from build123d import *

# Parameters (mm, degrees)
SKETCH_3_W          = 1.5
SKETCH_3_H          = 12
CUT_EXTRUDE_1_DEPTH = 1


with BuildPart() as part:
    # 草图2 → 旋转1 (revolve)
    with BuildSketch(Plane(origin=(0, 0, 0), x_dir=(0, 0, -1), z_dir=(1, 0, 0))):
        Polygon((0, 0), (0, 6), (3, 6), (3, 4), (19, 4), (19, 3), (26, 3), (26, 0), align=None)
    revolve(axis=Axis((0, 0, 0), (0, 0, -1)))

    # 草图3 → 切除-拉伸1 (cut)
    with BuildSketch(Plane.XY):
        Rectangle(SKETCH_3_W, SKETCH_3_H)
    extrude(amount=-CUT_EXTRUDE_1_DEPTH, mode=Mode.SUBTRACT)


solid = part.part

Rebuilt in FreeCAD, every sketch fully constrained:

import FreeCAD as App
import Part
import Sketcher
from FreeCAD import Vector


def add_polygon(sketch, points):
    """Adds a closed chain of lines whose ends are joined by coincident constraints."""
    first, n = sketch.GeometryCount, len(points)
    for a, b in zip(points, points[1:] + points[:1]):
        sketch.addGeometry(Part.LineSegment(App.Vector(*a, 0), App.Vector(*b, 0)), False)
    for i in range(n):
        sketch.addConstraint(Sketcher.Constraint("Coincident", first + i, 2, first + (i + 1) % n, 1))

doc = App.newDocument("Part")
body = doc.addObject("PartDesign::Body", "Body")

# Sketch on YZ plane
sketch1 = body.newObject("Sketcher::SketchObject", "Sketch")
sketch1.AttachmentSupport = (doc.getObject("YZ_Plane"), [""])
sketch1.MapMode = "FlatFace"
add_polygon(sketch1, [(6, 0), (0, 0), (0, -26), (3, -26), (3, -19), (4, -19), (4, -3), (6, -3)])  # lines 0-7
sketch1.addConstraint([
    Sketcher.Constraint("Horizontal", 0),
    Sketcher.Constraint("Vertical", 1),
    Sketcher.Constraint("Horizontal", 2),
    Sketcher.Constraint("Vertical", 3),
    Sketcher.Constraint("Horizontal", 4),
    Sketcher.Constraint("Vertical", 5),
    Sketcher.Constraint("Horizontal", 6),
    Sketcher.Constraint("Vertical", 7),
    Sketcher.Constraint("Coincident", 0, 2, -1, 1),
    Sketcher.Constraint("Equal", 2, 7),
    Sketcher.Constraint("DistanceX", 0, 2, 0, 1, 6.0),
    Sketcher.Constraint("DistanceX", 2, 1, 2, 2, 3.0),
    Sketcher.Constraint("DistanceX", 4, 1, 4, 2, 1.0),
    Sketcher.Constraint("DistanceY", 1, 2, 1, 1, 26.0),
    Sketcher.Constraint("DistanceY", 3, 1, 3, 2, 7.0),
])
revolution = body.newObject("PartDesign::Revolution", "Revolution")
revolution.Profile = sketch1
revolution.ReferenceAxis = (sketch1, ["V_Axis"])
revolution.Angle = 360

# Sketch on XY plane
sketch2 = body.newObject("Sketcher::SketchObject", "Sketch001")
sketch2.AttachmentSupport = (doc.getObject("XY_Plane"), [""])
sketch2.MapMode = "FlatFace"
add_polygon(sketch2, [(-0.75, 6), (-0.75, -6), (0.75, -6), (0.75, 6)])  # lines 0-3
sketch2.addConstraint([
    Sketcher.Constraint("Vertical", 0),
    Sketcher.Constraint("Horizontal", 1),
    Sketcher.Constraint("Vertical", 2),
    Sketcher.Constraint("Horizontal", 3),
    Sketcher.Constraint("Symmetric", 0, 2, 2, 2, -1, 1),
    Sketcher.Constraint("DistanceY", 0, 2, 0, 1, 12.0),
    Sketcher.Constraint("DistanceX", 1, 1, 1, 2, 1.5),
])
pocket1 = body.newObject("PartDesign::Pocket", "Pocket")
pocket1.Profile = sketch2
pocket1.Length = 1

doc.recompute()
